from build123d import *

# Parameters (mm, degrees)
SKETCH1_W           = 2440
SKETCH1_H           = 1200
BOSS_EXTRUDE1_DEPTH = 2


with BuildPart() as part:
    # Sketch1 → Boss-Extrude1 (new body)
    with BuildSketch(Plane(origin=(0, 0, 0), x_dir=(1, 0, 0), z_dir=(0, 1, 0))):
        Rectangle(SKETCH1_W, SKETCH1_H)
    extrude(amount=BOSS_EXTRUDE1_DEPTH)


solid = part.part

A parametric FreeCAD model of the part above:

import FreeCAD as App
import Part
import Sketcher
from FreeCAD import Vector
Q = App.Units.Quantity


def add_polygon(sketch, points):
    """Adds a closed chain of lines whose ends are joined by coincident constraints."""
    first, n = sketch.GeometryCount, len(points)
    for a, b in zip(points, points[1:] + points[:1]):
        sketch.addGeometry(Part.LineSegment(App.Vector(*a, 0), App.Vector(*b, 0)), False)
    for i in range(n):
        sketch.addConstraint(Sketcher.Constraint("Coincident", first + i, 2, first + (i + 1) % n, 1))

doc = App.newDocument("Part")
body = doc.addObject("PartDesign::Body", "Body")

# Sketch on XZ plane
sketch1 = body.newObject("Sketcher::SketchObject", "Sketch")
sketch1.AttachmentSupport = (doc.getObject("XZ_Plane"), [""])
sketch1.MapMode = "FlatFace"
add_polygon(sketch1, [(-1220, -600), (-1220, 600), (1220, 600), (1220, -600)])  # lines 0-3
sketch1.addConstraint([
    Sketcher.Constraint("Vertical", 0),
    Sketcher.Constraint("Horizontal", 1),
    Sketcher.Constraint("Vertical", 2),
    Sketcher.Constraint("Horizontal", 3),
    Sketcher.Constraint("Symmetric", 0, 2, 2, 2, -1, 1),
    Sketcher.Constraint("DistanceX", 1, 1, 1, 2, Q("2440 mm")),
    Sketcher.Constraint("DistanceY", 0, 1, 0, 2, Q("1200 mm")),
])
pad1 = body.newObject("PartDesign::Pad", "Pad")
pad1.Profile = sketch1
pad1.Length = 2
pad1.Reversed = True

doc.recompute()
